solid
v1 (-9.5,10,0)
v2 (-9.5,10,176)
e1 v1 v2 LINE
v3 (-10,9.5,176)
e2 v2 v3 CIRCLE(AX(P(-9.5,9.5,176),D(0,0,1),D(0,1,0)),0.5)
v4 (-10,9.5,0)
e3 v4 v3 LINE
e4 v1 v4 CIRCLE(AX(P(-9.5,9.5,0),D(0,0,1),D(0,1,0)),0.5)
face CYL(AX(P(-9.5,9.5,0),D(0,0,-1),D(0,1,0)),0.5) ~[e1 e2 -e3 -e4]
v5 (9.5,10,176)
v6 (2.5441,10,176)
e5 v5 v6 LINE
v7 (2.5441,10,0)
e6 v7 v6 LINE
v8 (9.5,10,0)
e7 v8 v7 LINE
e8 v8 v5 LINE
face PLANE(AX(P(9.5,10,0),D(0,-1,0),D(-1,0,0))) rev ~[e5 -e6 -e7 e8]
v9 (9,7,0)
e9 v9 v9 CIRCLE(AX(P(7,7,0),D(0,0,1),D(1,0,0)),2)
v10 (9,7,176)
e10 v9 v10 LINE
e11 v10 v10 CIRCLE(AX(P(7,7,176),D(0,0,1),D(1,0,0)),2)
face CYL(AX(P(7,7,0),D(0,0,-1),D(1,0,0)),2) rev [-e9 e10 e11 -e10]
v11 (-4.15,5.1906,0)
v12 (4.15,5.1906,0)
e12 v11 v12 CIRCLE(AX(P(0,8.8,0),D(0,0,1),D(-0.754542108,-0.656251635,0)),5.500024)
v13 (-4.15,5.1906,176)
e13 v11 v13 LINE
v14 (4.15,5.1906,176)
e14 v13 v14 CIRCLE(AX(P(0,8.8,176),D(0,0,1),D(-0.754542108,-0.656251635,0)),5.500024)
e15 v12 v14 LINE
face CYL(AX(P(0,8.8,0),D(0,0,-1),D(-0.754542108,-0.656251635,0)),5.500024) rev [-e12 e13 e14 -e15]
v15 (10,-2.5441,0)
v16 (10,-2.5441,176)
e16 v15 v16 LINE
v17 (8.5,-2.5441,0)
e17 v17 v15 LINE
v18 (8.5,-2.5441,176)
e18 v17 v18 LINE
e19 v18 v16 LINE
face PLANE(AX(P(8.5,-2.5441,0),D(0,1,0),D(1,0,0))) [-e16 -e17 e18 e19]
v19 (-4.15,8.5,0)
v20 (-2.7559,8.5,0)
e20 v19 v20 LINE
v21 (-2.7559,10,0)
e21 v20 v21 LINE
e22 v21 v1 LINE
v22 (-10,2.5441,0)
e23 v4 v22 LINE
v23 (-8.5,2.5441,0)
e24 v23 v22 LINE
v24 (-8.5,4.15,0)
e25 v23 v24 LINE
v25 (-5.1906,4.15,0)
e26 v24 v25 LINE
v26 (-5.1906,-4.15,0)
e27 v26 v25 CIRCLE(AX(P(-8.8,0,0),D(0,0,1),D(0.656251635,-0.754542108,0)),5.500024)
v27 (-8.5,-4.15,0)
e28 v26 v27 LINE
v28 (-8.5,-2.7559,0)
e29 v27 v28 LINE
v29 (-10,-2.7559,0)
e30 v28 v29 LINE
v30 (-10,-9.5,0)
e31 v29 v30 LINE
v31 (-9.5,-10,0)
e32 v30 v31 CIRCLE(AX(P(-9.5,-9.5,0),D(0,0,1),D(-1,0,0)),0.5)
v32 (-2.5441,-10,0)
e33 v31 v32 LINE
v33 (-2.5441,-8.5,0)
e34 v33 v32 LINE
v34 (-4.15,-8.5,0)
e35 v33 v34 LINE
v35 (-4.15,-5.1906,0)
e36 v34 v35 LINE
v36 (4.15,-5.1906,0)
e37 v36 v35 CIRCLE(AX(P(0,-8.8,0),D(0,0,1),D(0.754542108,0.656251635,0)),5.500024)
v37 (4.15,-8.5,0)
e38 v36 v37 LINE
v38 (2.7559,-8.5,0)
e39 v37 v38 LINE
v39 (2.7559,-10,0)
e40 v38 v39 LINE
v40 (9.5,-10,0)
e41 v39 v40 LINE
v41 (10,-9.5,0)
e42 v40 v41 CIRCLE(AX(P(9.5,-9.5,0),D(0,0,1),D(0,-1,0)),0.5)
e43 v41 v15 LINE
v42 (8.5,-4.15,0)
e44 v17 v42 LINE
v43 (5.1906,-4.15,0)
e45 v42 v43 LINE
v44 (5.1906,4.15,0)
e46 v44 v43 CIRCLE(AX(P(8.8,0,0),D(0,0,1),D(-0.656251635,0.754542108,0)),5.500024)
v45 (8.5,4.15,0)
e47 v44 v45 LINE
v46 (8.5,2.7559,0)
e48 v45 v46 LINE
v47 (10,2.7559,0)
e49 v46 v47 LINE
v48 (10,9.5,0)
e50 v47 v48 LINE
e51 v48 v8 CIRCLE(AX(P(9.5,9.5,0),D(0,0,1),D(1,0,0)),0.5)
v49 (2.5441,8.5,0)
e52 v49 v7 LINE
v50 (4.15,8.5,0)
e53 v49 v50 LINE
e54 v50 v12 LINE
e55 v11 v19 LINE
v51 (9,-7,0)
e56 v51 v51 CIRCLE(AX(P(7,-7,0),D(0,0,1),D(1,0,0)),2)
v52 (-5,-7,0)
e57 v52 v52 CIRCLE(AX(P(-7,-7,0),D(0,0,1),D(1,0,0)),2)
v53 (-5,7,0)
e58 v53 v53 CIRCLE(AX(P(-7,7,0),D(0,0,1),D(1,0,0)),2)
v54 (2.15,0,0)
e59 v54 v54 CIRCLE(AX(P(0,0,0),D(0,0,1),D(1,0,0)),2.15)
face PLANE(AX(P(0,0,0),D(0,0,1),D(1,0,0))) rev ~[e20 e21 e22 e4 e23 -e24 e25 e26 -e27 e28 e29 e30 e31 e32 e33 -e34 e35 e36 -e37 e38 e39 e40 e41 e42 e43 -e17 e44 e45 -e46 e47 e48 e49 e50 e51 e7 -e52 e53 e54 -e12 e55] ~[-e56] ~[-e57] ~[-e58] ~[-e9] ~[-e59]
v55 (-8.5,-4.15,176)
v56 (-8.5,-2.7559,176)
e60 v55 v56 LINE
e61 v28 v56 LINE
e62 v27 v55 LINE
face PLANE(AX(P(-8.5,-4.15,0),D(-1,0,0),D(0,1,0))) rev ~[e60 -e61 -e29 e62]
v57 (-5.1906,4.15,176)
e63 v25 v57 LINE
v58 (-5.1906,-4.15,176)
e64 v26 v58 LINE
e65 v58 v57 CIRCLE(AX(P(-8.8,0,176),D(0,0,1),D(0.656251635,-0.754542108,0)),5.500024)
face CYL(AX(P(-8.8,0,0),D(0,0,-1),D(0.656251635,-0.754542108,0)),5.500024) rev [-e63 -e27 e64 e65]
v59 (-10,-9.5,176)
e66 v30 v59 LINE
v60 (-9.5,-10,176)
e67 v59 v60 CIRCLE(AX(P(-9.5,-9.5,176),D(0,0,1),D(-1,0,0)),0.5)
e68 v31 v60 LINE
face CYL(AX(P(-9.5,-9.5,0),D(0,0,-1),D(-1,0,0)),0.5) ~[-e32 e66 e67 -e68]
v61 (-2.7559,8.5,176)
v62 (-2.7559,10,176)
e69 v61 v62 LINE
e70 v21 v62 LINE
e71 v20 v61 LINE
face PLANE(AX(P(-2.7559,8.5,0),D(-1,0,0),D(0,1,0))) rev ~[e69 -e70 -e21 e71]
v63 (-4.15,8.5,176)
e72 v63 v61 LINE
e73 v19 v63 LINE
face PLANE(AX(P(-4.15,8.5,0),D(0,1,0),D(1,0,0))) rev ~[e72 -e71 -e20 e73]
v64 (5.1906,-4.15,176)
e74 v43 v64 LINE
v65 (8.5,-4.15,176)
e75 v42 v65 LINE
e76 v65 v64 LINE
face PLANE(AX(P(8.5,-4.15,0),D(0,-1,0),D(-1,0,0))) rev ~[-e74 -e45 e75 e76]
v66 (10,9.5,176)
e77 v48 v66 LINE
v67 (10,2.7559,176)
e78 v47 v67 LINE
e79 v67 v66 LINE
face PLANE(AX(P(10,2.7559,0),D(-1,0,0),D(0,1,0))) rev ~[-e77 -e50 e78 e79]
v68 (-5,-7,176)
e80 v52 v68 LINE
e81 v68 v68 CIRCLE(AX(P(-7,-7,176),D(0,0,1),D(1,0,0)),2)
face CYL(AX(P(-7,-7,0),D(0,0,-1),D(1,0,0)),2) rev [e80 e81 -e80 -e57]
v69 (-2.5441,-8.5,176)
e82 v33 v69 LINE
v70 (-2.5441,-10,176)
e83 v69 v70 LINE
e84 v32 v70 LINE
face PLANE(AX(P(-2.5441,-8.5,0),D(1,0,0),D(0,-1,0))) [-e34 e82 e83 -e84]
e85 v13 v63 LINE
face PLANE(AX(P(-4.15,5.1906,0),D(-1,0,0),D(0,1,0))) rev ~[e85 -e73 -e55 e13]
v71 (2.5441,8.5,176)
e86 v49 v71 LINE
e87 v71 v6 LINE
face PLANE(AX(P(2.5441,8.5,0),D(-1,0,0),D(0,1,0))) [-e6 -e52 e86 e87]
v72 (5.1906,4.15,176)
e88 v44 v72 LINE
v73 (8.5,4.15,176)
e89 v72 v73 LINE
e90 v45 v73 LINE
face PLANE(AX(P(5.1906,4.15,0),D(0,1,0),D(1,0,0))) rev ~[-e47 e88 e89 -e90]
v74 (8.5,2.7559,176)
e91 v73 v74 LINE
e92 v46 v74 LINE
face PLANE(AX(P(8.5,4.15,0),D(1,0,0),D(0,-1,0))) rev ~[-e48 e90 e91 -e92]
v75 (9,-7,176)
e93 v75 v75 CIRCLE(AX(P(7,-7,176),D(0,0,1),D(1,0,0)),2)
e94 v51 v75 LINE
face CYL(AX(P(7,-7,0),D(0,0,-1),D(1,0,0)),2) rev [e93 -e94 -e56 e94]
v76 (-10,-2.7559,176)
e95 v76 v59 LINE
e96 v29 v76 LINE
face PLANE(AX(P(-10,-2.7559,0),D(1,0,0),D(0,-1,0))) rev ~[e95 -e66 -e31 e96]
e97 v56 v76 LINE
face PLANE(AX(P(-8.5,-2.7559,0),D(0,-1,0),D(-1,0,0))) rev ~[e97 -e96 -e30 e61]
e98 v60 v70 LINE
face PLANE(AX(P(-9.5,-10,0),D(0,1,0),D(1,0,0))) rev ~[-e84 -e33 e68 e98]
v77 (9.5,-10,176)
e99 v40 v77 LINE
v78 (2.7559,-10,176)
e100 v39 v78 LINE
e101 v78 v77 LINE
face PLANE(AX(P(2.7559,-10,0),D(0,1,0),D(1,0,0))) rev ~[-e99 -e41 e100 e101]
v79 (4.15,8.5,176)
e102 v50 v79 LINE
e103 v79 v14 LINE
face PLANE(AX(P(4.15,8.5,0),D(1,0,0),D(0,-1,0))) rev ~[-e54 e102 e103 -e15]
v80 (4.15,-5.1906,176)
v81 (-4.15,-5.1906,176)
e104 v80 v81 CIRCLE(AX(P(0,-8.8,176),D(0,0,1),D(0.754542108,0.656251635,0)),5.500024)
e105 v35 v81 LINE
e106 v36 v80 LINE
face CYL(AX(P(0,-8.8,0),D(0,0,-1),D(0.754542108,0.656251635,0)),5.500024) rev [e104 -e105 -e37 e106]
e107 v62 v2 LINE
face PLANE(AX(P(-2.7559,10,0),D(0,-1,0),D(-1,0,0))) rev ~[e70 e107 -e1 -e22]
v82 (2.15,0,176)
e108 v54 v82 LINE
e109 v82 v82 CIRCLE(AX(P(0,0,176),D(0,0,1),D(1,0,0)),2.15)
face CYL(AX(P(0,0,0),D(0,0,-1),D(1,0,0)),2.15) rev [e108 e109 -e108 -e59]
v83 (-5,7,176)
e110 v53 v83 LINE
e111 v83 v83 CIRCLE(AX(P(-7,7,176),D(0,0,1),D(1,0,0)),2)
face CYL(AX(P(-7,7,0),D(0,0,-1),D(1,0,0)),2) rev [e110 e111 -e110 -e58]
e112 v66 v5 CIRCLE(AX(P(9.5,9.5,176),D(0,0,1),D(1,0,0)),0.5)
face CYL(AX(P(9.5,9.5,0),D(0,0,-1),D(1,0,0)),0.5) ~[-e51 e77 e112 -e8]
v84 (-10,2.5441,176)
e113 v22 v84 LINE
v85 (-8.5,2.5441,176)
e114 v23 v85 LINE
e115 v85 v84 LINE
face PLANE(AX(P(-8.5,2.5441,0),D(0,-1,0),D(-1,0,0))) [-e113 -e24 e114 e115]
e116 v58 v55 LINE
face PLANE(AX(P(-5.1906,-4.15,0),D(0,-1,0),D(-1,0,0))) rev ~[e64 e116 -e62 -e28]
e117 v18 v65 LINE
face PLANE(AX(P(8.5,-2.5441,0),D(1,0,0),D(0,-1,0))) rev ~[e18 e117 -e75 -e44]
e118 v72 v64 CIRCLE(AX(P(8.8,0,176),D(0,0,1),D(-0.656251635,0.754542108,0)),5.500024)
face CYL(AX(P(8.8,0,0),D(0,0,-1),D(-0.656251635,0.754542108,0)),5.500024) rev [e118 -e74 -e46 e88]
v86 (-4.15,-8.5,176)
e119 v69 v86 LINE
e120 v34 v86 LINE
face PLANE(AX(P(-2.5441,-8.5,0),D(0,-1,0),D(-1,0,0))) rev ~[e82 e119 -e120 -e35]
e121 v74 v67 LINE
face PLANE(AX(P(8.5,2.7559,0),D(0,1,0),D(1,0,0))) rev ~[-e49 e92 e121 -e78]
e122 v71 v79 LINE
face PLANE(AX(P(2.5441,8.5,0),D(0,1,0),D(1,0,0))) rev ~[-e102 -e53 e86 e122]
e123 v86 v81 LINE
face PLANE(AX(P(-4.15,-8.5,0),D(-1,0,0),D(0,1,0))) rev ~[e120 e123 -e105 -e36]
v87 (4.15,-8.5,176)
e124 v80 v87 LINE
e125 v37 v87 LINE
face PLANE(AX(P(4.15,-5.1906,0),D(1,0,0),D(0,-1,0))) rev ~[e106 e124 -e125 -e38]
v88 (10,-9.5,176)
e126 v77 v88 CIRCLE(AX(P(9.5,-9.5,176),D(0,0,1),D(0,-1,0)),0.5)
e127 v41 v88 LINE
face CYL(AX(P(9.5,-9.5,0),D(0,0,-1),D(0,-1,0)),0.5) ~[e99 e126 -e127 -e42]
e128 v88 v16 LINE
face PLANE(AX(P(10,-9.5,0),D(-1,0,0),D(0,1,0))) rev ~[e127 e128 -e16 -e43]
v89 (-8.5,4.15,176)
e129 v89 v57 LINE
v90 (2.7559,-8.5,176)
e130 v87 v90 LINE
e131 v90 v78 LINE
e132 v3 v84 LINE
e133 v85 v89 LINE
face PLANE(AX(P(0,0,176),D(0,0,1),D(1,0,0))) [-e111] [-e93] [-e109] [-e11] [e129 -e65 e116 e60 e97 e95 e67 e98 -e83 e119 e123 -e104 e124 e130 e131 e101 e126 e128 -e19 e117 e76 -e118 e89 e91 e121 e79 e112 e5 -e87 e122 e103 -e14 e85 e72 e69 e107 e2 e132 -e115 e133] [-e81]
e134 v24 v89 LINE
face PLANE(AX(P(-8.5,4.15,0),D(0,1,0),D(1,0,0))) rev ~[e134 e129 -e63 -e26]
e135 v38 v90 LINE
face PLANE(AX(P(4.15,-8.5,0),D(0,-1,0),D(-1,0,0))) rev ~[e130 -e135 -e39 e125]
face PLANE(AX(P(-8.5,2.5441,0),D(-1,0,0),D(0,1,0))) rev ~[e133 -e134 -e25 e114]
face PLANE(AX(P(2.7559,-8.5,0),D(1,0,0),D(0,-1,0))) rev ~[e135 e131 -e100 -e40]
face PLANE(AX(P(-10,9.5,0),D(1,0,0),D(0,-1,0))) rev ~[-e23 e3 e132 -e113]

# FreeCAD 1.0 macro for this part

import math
import FreeCAD as App
import Part
import Sketcher

V = App.Vector
Q = App.Units.Quantity

doc = App.newDocument("Part")
params = doc.addObject("Spreadsheet::Sheet", "Params")
for row, (alias, value) in enumerate([
    ("sketch1_diameter", "4 mm"),
    ("sketch1_diameter2", "4.3 mm"),
    ("sketch1_radius", "0.5 mm"),
    ("sketch1_radius2", "5.5 mm"),
    ("sketch1_width", "1.5 mm"),
    ("pad1_length", "176 mm"),
], start=1):
    params.set(f"A{row}", alias)
    params.set(f"B{row}", "=" + value)
    params.setAlias(f"B{row}", alias)

body = doc.addObject("PartDesign::Body", "Body")

sketch1 = body.newObject("Sketcher::SketchObject", "Sketch")
sketch1.AttachmentSupport = (doc.getObject("XY_Plane"), [""])
sketch1.MapMode = "FlatFace"
sketch1.addGeometry([
    Part.LineSegment(V(-10, -2.7559, 0), V(-10, -9.5, 0)),
    Part.ArcOfCircle(Part.Circle(V(-9.5, -9.5, 0), V(0, 0, 1), 0.5), math.radians(180), math.radians(270)),
    Part.LineSegment(V(-9.5, -10, 0), V(-2.5441, -10, 0)),
    Part.LineSegment(V(-2.5441, -10, 0), V(-2.5441, -8.5, 0)),
    Part.LineSegment(V(-2.5441, -8.5, 0), V(-4.15, -8.5, 0)),
    Part.LineSegment(V(-4.15, -8.5, 0), V(-4.15, -5.1906, 0)),
    Part.ArcOfCircle(Part.Circle(V(0, -8.8, 0), V(0, 0, 1), 5.500024), math.radians(41.014624), math.radians(138.985376)),
    Part.LineSegment(V(4.15, -5.1906, 0), V(4.15, -8.5, 0)),
    Part.LineSegment(V(4.15, -8.5, 0), V(2.7559, -8.5, 0)),
    Part.LineSegment(V(2.7559, -8.5, 0), V(2.7559, -10, 0)),
    Part.LineSegment(V(2.7559, -10, 0), V(9.5, -10, 0)),
    Part.ArcOfCircle(Part.Circle(V(9.5, -9.5, 0), V(0, 0, 1), 0.5), math.radians(-90), math.radians(0)),
    Part.LineSegment(V(10, -9.5, 0), V(10, -2.5441, 0)),
    Part.LineSegment(V(10, -2.5441, 0), V(8.5, -2.5441, 0)),
    Part.LineSegment(V(8.5, -2.5441, 0), V(8.5, -4.15, 0)),
    Part.LineSegment(V(8.5, -4.15, 0), V(5.1906, -4.15, 0)),
    Part.ArcOfCircle(Part.Circle(V(8.8, 0, 0), V(0, 0, 1), 5.500024), math.radians(131.014624), math.radians(228.985376)),
    Part.LineSegment(V(5.1906, 4.15, 0), V(8.5, 4.15, 0)),
    Part.LineSegment(V(8.5, 4.15, 0), V(8.5, 2.7559, 0)),
    Part.LineSegment(V(8.5, 2.7559, 0), V(10, 2.7559, 0)),
    Part.LineSegment(V(10, 2.7559, 0), V(10, 9.5, 0)),
    Part.ArcOfCircle(Part.Circle(V(9.5, 9.5, 0), V(0, 0, 1), 0.5), math.radians(0), math.radians(90)),
    Part.LineSegment(V(9.5, 10, 0), V(2.5441, 10, 0)),
    Part.LineSegment(V(2.5441, 10, 0), V(2.5441, 8.5, 0)),
    Part.LineSegment(V(2.5441, 8.5, 0), V(4.15, 8.5, 0)),
    Part.LineSegment(V(4.15, 8.5, 0), V(4.15, 5.1906, 0)),
    Part.ArcOfCircle(Part.Circle(V(0, 8.8, 0), V(0, 0, 1), 5.500024), math.radians(-138.985376), math.radians(-41.014624)),
    Part.LineSegment(V(-4.15, 5.1906, 0), V(-4.15, 8.5, 0)),
    Part.LineSegment(V(-4.15, 8.5, 0), V(-2.7559, 8.5, 0)),
    Part.LineSegment(V(-2.7559, 8.5, 0), V(-2.7559, 10, 0)),
    Part.LineSegment(V(-2.7559, 10, 0), V(-9.5, 10, 0)),
    Part.ArcOfCircle(Part.Circle(V(-9.5, 9.5, 0), V(0, 0, 1), 0.5), math.radians(90), math.radians(180)),
    Part.LineSegment(V(-10, 9.5, 0), V(-10, 2.5441, 0)),
    Part.LineSegment(V(-10, 2.5441, 0), V(-8.5, 2.5441, 0)),
    Part.LineSegment(V(-8.5, 2.5441, 0), V(-8.5, 4.15, 0)),
    Part.LineSegment(V(-8.5, 4.15, 0), V(-5.1906, 4.15, 0)),
    Part.ArcOfCircle(Part.Circle(V(-8.8, 0, 0), V(0, 0, 1), 5.500024), math.radians(-48.985376), math.radians(48.985376)),
    Part.LineSegment(V(-5.1906, -4.15, 0), V(-8.5, -4.15, 0)),
    Part.LineSegment(V(-8.5, -4.15, 0), V(-8.5, -2.7559, 0)),
    Part.LineSegment(V(-8.5, -2.7559, 0), V(-10, -2.7559, 0)),
    Part.Circle(V(-7, -7, 0), V(0, 0, 1), 2),
    Part.Circle(V(7, -7, 0), V(0, 0, 1), 2),
    Part.Circle(V(-7, 7, 0), V(0, 0, 1), 2),
    Part.Circle(V(0, 0, 0), V(0, 0, 1), 2.15),
    Part.Circle(V(7, 7, 0), V(0, 0, 1), 2),
], False)
sketch1.addConstraint([
    Sketcher.Constraint("Tangent", 0, 2, 1, 1),
    Sketcher.Constraint("Tangent", 1, 2, 2, 1),
    Sketcher.Constraint("Coincident", 2, 2, 3, 1),
    Sketcher.Constraint("Coincident", 3, 2, 4, 1),
    Sketcher.Constraint("Coincident", 4, 2, 5, 1),
    Sketcher.Constraint("Coincident", 5, 2, 6, 2),
    Sketcher.Constraint("Coincident", 6, 1, 7, 1),
    Sketcher.Constraint("Coincident", 7, 2, 8, 1),
    Sketcher.Constraint("Coincident", 8, 2, 9, 1),
    Sketcher.Constraint("Coincident", 9, 2, 10, 1),
    Sketcher.Constraint("Tangent", 10, 2, 11, 1),
    Sketcher.Constraint("Tangent", 11, 2, 12, 1),
    Sketcher.Constraint("Coincident", 12, 2, 13, 1),
    Sketcher.Constraint("Coincident", 13, 2, 14, 1),
    Sketcher.Constraint("Coincident", 14, 2, 15, 1),
    Sketcher.Constraint("Coincident", 15, 2, 16, 2),
    Sketcher.Constraint("Coincident", 16, 1, 17, 1),
    Sketcher.Constraint("Coincident", 17, 2, 18, 1),
    Sketcher.Constraint("Coincident", 18, 2, 19, 1),
    Sketcher.Constraint("Coincident", 19, 2, 20, 1),
    Sketcher.Constraint("Tangent", 20, 2, 21, 1),
    Sketcher.Constraint("Tangent", 21, 2, 22, 1),
    Sketcher.Constraint("Coincident", 22, 2, 23, 1),
    Sketcher.Constraint("Coincident", 23, 2, 24, 1),
    Sketcher.Constraint("Coincident", 24, 2, 25, 1),
    Sketcher.Constraint("Coincident", 25, 2, 26, 2),
    Sketcher.Constraint("Coincident", 26, 1, 27, 1),
    Sketcher.Constraint("Coincident", 27, 2, 28, 1),
    Sketcher.Constraint("Coincident", 28, 2, 29, 1),
    Sketcher.Constraint("Coincident", 29, 2, 30, 1),
    Sketcher.Constraint("Tangent", 30, 2, 31, 1),
    Sketcher.Constraint("Tangent", 31, 2, 32, 1),
    Sketcher.Constraint("Coincident", 32, 2, 33, 1),
    Sketcher.Constraint("Coincident", 33, 2, 34, 1),
    Sketcher.Constraint("Coincident", 34, 2, 35, 1),
    Sketcher.Constraint("Coincident", 35, 2, 36, 2),
    Sketcher.Constraint("Coincident", 36, 1, 37, 1),
    Sketcher.Constraint("Coincident", 37, 2, 38, 1),
    Sketcher.Constraint("Coincident", 38, 2, 39, 1),
    Sketcher.Constraint("Coincident", 39, 2, 0, 1),
    Sketcher.Constraint("Vertical", 0),
    Sketcher.Constraint("Horizontal", 2),
    Sketcher.Constraint("Vertical", 3),
    Sketcher.Constraint("Horizontal", 4),
    Sketcher.Constraint("Vertical", 5),
    Sketcher.Constraint("Vertical", 7),
    Sketcher.Constraint("Horizontal", 8),
    Sketcher.Constraint("Vertical", 9),
    Sketcher.Constraint("Horizontal", 10),
    Sketcher.Constraint("Vertical", 12),
    Sketcher.Constraint("Horizontal", 13),
    Sketcher.Constraint("Vertical", 14),
    Sketcher.Constraint("Horizontal", 15),
    Sketcher.Constraint("Horizontal", 17),
    Sketcher.Constraint("Vertical", 18),
    Sketcher.Constraint("Horizontal", 19),
    Sketcher.Constraint("Vertical", 20),
    Sketcher.Constraint("Horizontal", 22),
    Sketcher.Constraint("Vertical", 23),
    Sketcher.Constraint("Horizontal", 24),
    Sketcher.Constraint("Vertical", 25),
    Sketcher.Constraint("Vertical", 27),
    Sketcher.Constraint("Horizontal", 28),
    Sketcher.Constraint("Vertical", 29),
    Sketcher.Constraint("Horizontal", 30),
    Sketcher.Constraint("Vertical", 32),
    Sketcher.Constraint("Horizontal", 33),
    Sketcher.Constraint("Vertical", 34),
    Sketcher.Constraint("Horizontal", 35),
    Sketcher.Constraint("Horizontal", 37),
    Sketcher.Constraint("Vertical", 38),
    Sketcher.Constraint("Horizontal", 39),
    Sketcher.Constraint("Coincident", 43, 3, -1, 1),
    Sketcher.Constraint("Equal", 1, 11),
    Sketcher.Constraint("Equal", 6, 16),
    Sketcher.Constraint("Equal", 11, 21),
    Sketcher.Constraint("Equal", 16, 26),
    Sketcher.Constraint("Equal", 21, 31),
    Sketcher.Constraint("Equal", 26, 36),
    Sketcher.Constraint("Equal", 40, 41),
    Sketcher.Constraint("Equal", 41, 42),
    Sketcher.Constraint("Equal", 42, 44),
    Sketcher.Constraint("Symmetric", 1, 3, 21, 3, -1, 1),
    Sketcher.Constraint("Symmetric", 6, 3, 26, 3, -1, 1),
    Sketcher.Constraint("Symmetric", 11, 3, 31, 3, -1, 1),
    Sketcher.Constraint("Symmetric", 16, 3, 36, 3, -1, 1),
    Sketcher.Constraint("Symmetric", 41, 3, 42, 3, -1, 1),
    Sketcher.Constraint("Symmetric", 40, 3, 44, 3, -1, 1),
    Sketcher.Constraint("Symmetric", 3, 2, 23, 2, -1, 1),
    Sketcher.Constraint("Symmetric", 7, 2, 27, 2, -1, 1),
    Sketcher.Constraint("Symmetric", 13, 2, 33, 2, -1, 1),
    Sketcher.Constraint("Symmetric", 17, 2, 37, 2, -1, 1),
    Sketcher.Constraint("Symmetric", 1, 3, 11, 3, -2),
    Sketcher.Constraint("Symmetric", 40, 3, 41, 3, -2),
    Sketcher.Constraint("Symmetric", 5, 2, 6, 1, -2),
    Sketcher.Constraint("Symmetric", 24, 2, 27, 2, -2),
    Sketcher.Constraint("Symmetric", 17, 2, 34, 2, -2),
    Sketcher.Constraint("Symmetric", 15, 2, 36, 1, -2),
    Sketcher.Constraint("Equal", 8, 28),
    Sketcher.Constraint("Equal", 30, 0),
    Sketcher.Constraint("Equal", 39, 3),
    Sketcher.Constraint("Equal", 37, 5),
    Sketcher.Constraint("Equal", 22, 12),
    Sketcher.Constraint("Equal", 24, 14),
    Sketcher.Constraint("Equal", 28, 18),
    Sketcher.Constraint("Diameter", 40, Q("4 mm")),
    Sketcher.Constraint("Diameter", 43, Q("4.3 mm")),
    Sketcher.Constraint("Radius", 1, Q("0.5 mm")),
    Sketcher.Constraint("Radius", 6, Q("5.5 mm")),
    Sketcher.Constraint("DistanceX", 13, 2, 13, 1, Q("1.5 mm")),
    Sketcher.Constraint("DistanceX", 40, 3, 41, 3, Q("14 mm")),
    Sketcher.Constraint("DistanceY", 40, 3, 42, 3, Q("14 mm")),
    Sketcher.Constraint("DistanceY", 3, 2, 40, 3, Q("1.5 mm")),
    Sketcher.Constraint("DistanceX", 3, 2, 8, 2, Q("5.3 mm")),
    Sketcher.Constraint("DistanceX", 41, 3, 13, 2, Q("1.5 mm")),
    Sketcher.Constraint("DistanceY", 6, 3, -1, 1, Q("8.8 mm")),
    Sketcher.Constraint("DistanceX", 2, 1, 2, 2, Q("6.956 mm")),
    Sketcher.Constraint("DistanceX", 4, 2, 4, 1, Q("1.606 mm")),
])
sketch1.setExpression("Constraints[105]", "Params.sketch1_diameter")
sketch1.setExpression("Constraints[106]", "Params.sketch1_diameter2")
sketch1.setExpression("Constraints[107]", "Params.sketch1_radius")
sketch1.setExpression("Constraints[108]", "Params.sketch1_radius2")
sketch1.setExpression("Constraints[109]", "Params.sketch1_width")
pad1 = body.newObject("PartDesign::Pad", "Pad")
pad1.Profile = sketch1
pad1.setExpression("Length", "Params.pad1_length")

doc.recompute()
